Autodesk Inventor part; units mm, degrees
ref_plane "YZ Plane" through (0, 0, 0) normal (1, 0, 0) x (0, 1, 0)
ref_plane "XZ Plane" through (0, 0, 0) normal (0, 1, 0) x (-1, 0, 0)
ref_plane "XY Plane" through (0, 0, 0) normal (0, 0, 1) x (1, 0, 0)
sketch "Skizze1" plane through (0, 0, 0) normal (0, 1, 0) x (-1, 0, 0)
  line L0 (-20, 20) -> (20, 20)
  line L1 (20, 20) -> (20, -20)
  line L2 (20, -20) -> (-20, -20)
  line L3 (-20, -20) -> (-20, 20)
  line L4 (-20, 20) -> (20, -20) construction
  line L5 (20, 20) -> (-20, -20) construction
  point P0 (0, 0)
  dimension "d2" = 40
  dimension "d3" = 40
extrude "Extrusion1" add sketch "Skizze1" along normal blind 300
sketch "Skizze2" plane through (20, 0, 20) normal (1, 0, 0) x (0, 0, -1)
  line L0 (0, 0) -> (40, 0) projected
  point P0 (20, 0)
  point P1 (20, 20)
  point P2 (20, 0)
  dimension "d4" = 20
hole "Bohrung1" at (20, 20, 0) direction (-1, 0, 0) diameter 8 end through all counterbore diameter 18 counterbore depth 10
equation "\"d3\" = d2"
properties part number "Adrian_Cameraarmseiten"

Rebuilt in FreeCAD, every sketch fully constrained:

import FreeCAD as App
import Part
import Sketcher

V = App.Vector
Q = App.Units.Quantity

doc = App.newDocument("Part")
params = doc.addObject("Spreadsheet::Sheet", "Params")
for row, (alias, value) in enumerate([
    ("sketch1_width", "40 mm"),
    ("pad1_length", "300 mm"),
    ("sketch2_diameter", "8 mm"),
    ("hole_diameter", "8 mm"),
    ("hole_cbore_diameter", "18 mm"),
    ("hole_cbore_depth", "10 mm"),
], start=1):
    params.set(f"A{row}", alias)
    params.set(f"B{row}", "=" + value)
    params.setAlias(f"B{row}", alias)

body = doc.addObject("PartDesign::Body", "Body")

sketch1 = body.newObject("Sketcher::SketchObject", "Sketch")
sketch1.AttachmentSupport = (doc.getObject("XZ_Plane"), [""])
sketch1.MapMode = "FlatFace"
sketch1.addGeometry(Part.LineSegment(V(-20, 20, 0), V(20, 20, 0)), False)
sketch1.addGeometry(Part.LineSegment(V(20, 20, 0), V(20, -20, 0)), False)
sketch1.addGeometry(Part.LineSegment(V(20, -20, 0), V(-20, -20, 0)), False)
sketch1.addGeometry(Part.LineSegment(V(-20, -20, 0), V(-20, 20, 0)), False)
sketch1.addConstraint(Sketcher.Constraint("Coincident", 0, 2, 1, 1))
sketch1.addConstraint(Sketcher.Constraint("Coincident", 1, 2, 2, 1))
sketch1.addConstraint(Sketcher.Constraint("Coincident", 2, 2, 3, 1))
sketch1.addConstraint(Sketcher.Constraint("Coincident", 3, 2, 0, 1))
sketch1.addConstraint(Sketcher.Constraint("Horizontal", 0))
sketch1.addConstraint(Sketcher.Constraint("Vertical", 1))
sketch1.addConstraint(Sketcher.Constraint("Horizontal", 2))
sketch1.addConstraint(Sketcher.Constraint("Vertical", 3))
sketch1.addConstraint(Sketcher.Constraint("Symmetric", 0, 2, 2, 2, -1, 1))
sketch1.addConstraint(Sketcher.Constraint("Equal", 2, 1))
sketch1.addConstraint(Sketcher.Constraint("DistanceX", 0, 1, 0, 2, Q("40 mm")))
sketch1.setExpression("Constraints[10]", "Params.sketch1_width")
pad1 = body.newObject("PartDesign::Pad", "Pad")
pad1.Profile = sketch1
pad1.setExpression("Length", "Params.pad1_length")
pad1.Reversed = True

sketch2 = body.newObject("Sketcher::SketchObject", "Sketch001")
sketch2.AttachmentSupport = (doc.getObject("YZ_Plane"), [""])
sketch2.MapMode = "FlatFace"
sketch2.AttachmentOffset = App.Placement(V(0, 0, 20), App.Rotation())
sketch2.addGeometry(Part.Circle(V(20, 0, 0), V(0, 0, 1), 4), False)
sketch2.addConstraint(Sketcher.Constraint("PointOnObject", 0, 3, -1))
sketch2.addConstraint(Sketcher.Constraint("Diameter", 0, Q("8 mm")))
sketch2.addConstraint(Sketcher.Constraint("DistanceX", -1, 1, 0, 3, Q("20 mm")))
sketch2.setExpression("Constraints[1]", "Params.sketch2_diameter")
doc.recompute()
hole = body.newObject("PartDesign::Hole", "Hole")
hole.Profile = sketch2
hole.ThreadType = "None"
hole.setExpression("Diameter", "Params.hole_diameter")
hole.DepthType = "ThroughAll"
hole.HoleCutType = "Counterbore"
hole.setExpression("HoleCutDiameter", "Params.hole_cbore_diameter")
hole.setExpression("HoleCutDepth", "Params.hole_cbore_depth")

doc.recompute()
